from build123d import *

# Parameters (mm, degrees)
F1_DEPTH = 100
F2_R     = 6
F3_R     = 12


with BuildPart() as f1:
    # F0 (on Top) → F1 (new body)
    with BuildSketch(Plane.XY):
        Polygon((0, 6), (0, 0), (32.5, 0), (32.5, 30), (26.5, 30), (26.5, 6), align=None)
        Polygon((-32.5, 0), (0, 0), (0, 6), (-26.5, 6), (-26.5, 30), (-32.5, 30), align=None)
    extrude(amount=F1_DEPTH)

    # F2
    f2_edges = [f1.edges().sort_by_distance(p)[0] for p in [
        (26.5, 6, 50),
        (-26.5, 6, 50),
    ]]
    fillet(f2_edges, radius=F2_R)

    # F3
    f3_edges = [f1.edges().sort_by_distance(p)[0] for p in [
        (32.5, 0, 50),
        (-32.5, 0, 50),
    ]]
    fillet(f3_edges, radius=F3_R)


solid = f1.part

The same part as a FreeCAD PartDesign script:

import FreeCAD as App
import Part
import Sketcher
from FreeCAD import Vector


def edges_at(feature, points):
    """Names of the edges that pass closest to the given points."""
    edges = feature.Shape.Edges
    near = lambda p: min(range(len(edges)), key=lambda i: edges[i].distToShape(Part.Vertex(*p))[0])
    return sorted({f"Edge{near(p) + 1}" for p in points})

doc = App.newDocument("Part")
body = doc.addObject("PartDesign::Body", "Body")

sketch1 = body.newObject("Sketcher::SketchObject", "Sketch")
sketch1.AttachmentSupport = (doc.getObject("XY_Plane"), [""])
sketch1.MapMode = "FlatFace"
sketch1.addGeometry([
    Part.LineSegment(Vector(32, 0, 0), Vector(32, 30, 0)),
    Part.LineSegment(Vector(32, 30, 0), Vector(26, 30, 0)),
    Part.LineSegment(Vector(26, 30, 0), Vector(26, 6, 0)),
    Part.LineSegment(Vector(26, 6, 0), Vector(-26, 6, 0)),
    Part.LineSegment(Vector(-26, 6, 0), Vector(-26, 30, 0)),
    Part.LineSegment(Vector(-26, 30, 0), Vector(-32, 30, 0)),
    Part.LineSegment(Vector(-32, 30, 0), Vector(-32, 0, 0)),
    Part.LineSegment(Vector(-32, 0, 0), Vector(32, 0, 0)),
], False)
sketch1.addConstraint([
    Sketcher.Constraint("Coincident", 0, 2, 1, 1),
    Sketcher.Constraint("Coincident", 1, 2, 2, 1),
    Sketcher.Constraint("Coincident", 2, 2, 3, 1),
    Sketcher.Constraint("Coincident", 3, 2, 4, 1),
    Sketcher.Constraint("Coincident", 4, 2, 5, 1),
    Sketcher.Constraint("Coincident", 5, 2, 6, 1),
    Sketcher.Constraint("Coincident", 6, 2, 7, 1),
    Sketcher.Constraint("Coincident", 7, 2, 0, 1),
    Sketcher.Constraint("Vertical", 0),
    Sketcher.Constraint("Horizontal", 1),
    Sketcher.Constraint("Vertical", 2),
    Sketcher.Constraint("Horizontal", 3),
    Sketcher.Constraint("Vertical", 4),
    Sketcher.Constraint("Horizontal", 5),
    Sketcher.Constraint("Vertical", 6),
    Sketcher.Constraint("Horizontal", 7),
    Sketcher.Constraint("Symmetric", 6, 2, 7, 2, -1, 1),
    Sketcher.Constraint("Symmetric", 1, 2, 4, 2, -2),
    Sketcher.Constraint("DistanceX", 1, 2, 1, 1, 6.0),
    Sketcher.Constraint("DistanceX", 3, 2, 3, 1, 53.0),
    Sketcher.Constraint("DistanceY", 0, 1, 0, 2, 30.0),
    Sketcher.Constraint("DistanceY", 2, 2, 2, 1, 24.0),
])
pad1 = body.newObject("PartDesign::Pad", "Pad")
pad1.Profile = sketch1
pad1.Length = 100
doc.recompute()

fillet = body.newObject("PartDesign::Fillet", "Fillet")
fillet.Base = (pad1, edges_at(pad1, [(26.5, 6, 50), (-26.5, 6, 50)]))
fillet.Radius = 6
doc.recompute()

fillet2 = body.newObject("PartDesign::Fillet", "Fillet001")
fillet2.Base = (fillet, edges_at(fillet, [(32.5, 0, 50), (-32.5, 0, 50)]))
fillet2.Radius = 12

doc.recompute()
